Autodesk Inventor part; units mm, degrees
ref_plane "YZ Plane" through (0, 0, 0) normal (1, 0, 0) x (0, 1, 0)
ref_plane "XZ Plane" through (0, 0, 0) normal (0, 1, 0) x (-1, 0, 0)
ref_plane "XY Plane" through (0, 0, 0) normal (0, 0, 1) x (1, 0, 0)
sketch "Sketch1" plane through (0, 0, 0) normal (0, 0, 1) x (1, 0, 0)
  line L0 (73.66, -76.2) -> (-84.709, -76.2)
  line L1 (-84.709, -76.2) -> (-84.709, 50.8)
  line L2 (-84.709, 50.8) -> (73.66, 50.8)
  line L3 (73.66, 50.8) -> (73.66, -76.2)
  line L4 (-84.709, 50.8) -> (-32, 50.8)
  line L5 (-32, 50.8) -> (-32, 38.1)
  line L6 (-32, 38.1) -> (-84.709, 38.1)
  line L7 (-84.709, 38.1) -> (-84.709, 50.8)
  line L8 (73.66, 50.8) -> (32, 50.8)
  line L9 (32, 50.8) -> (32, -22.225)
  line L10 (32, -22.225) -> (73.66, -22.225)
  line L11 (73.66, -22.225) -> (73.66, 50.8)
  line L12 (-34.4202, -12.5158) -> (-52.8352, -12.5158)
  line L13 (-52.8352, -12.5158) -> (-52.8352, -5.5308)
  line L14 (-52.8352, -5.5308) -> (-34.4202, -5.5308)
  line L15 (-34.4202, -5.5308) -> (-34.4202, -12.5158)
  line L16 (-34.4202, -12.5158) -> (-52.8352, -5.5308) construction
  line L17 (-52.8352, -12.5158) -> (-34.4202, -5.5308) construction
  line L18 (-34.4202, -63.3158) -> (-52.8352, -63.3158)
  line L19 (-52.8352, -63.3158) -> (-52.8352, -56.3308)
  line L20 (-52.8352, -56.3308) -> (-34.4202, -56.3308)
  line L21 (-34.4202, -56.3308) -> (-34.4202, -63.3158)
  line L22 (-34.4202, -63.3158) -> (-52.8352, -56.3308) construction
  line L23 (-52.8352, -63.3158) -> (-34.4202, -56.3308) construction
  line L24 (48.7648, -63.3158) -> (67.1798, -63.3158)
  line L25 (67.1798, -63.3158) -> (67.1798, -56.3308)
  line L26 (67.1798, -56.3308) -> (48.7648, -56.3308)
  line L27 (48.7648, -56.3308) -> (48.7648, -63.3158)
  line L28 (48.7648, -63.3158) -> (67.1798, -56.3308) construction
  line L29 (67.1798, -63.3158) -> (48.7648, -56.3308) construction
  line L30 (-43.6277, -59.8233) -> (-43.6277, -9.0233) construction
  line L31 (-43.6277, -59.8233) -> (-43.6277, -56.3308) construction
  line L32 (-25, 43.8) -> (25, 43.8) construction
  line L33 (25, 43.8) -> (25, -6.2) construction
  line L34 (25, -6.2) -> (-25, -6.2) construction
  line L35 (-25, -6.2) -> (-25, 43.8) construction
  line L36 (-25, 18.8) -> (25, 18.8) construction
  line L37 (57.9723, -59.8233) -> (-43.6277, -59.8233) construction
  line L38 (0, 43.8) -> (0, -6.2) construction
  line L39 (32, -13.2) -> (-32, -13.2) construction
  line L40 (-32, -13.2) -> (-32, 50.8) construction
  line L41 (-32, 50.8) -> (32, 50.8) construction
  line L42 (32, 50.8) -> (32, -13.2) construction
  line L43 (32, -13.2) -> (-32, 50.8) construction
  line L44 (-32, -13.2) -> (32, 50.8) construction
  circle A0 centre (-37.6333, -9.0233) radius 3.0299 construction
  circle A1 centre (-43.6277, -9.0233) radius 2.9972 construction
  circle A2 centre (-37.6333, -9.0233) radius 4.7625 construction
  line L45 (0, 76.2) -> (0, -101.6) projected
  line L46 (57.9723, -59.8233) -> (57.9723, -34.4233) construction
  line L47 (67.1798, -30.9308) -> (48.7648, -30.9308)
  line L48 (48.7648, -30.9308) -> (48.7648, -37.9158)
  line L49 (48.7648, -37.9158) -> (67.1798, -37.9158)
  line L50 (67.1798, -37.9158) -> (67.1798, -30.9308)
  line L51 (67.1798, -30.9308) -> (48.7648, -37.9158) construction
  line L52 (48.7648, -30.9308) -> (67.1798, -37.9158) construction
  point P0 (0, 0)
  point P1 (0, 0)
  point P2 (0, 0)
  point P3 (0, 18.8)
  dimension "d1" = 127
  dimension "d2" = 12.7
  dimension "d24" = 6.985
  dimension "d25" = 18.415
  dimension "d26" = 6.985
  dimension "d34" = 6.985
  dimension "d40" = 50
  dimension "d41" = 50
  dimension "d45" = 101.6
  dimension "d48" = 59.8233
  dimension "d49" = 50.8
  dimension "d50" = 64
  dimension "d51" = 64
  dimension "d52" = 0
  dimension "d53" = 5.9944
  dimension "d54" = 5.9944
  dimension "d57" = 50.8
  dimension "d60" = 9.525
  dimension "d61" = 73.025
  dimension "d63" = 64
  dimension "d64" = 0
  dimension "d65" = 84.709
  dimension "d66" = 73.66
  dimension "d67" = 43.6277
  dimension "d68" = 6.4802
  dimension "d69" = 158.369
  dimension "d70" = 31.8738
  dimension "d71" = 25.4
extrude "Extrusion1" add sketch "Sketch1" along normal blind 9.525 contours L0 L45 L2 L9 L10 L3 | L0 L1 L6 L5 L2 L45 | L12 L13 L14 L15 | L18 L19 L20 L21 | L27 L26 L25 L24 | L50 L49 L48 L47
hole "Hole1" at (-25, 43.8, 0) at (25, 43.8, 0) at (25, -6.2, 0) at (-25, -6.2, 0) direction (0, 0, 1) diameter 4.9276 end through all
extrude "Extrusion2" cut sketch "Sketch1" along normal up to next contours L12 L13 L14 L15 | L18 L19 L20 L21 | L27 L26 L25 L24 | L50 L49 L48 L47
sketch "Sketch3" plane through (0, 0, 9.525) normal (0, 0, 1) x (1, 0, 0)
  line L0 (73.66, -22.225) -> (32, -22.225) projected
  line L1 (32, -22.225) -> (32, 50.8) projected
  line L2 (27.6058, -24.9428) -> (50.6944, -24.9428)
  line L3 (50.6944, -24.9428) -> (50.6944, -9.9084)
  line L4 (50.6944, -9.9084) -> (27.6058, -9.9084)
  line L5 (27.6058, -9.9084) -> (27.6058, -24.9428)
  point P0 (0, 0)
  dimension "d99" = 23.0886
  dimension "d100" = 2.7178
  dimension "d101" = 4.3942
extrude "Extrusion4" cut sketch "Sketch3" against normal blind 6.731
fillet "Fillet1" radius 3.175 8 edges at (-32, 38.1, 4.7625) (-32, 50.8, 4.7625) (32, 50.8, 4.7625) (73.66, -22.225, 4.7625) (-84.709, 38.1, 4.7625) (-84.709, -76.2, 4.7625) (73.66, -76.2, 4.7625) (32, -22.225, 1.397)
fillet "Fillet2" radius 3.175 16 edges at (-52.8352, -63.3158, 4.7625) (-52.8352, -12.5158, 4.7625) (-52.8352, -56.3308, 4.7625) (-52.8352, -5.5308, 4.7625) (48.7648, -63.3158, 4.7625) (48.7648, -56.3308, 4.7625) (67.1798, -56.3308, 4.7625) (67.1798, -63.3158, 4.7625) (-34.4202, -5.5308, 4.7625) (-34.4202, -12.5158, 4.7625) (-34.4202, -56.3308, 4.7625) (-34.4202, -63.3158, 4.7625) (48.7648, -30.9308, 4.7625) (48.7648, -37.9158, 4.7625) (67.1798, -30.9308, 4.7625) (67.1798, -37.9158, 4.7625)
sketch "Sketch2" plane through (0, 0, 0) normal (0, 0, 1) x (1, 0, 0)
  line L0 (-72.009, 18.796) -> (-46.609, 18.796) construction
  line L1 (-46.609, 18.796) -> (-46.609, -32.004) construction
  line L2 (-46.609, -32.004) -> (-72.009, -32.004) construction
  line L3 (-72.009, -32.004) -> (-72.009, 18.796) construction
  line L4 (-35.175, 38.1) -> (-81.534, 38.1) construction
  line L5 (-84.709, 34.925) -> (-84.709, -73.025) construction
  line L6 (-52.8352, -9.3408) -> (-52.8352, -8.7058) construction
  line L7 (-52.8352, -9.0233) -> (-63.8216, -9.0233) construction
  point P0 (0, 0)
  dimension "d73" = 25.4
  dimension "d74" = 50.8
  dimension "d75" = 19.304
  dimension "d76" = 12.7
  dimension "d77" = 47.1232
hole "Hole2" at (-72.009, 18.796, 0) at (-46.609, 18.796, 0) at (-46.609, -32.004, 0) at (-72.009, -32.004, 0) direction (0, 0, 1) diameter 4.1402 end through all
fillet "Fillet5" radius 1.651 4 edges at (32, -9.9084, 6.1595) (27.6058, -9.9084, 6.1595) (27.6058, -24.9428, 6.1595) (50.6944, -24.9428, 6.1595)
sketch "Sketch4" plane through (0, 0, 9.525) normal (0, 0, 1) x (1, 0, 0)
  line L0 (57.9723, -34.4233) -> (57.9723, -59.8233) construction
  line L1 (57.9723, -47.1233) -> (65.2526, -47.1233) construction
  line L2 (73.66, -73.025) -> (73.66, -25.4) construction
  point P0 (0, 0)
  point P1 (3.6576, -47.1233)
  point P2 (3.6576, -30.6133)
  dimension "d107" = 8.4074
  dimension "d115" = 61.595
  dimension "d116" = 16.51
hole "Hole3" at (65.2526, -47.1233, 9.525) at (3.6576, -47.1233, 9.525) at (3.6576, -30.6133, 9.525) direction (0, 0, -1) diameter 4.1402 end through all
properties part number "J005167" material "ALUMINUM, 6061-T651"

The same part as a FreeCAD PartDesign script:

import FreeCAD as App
import Part
import Sketcher
from FreeCAD import Vector
Q = App.Units.Quantity


def edges_at(feature, points):
    """Names of the edges that pass closest to the given points."""
    edges = feature.Shape.Edges
    near = lambda p: min(range(len(edges)), key=lambda i: edges[i].distToShape(Part.Vertex(*p))[0])
    return sorted({f"Edge{near(p) + 1}" for p in points})

doc = App.newDocument("Part")
body = doc.addObject("PartDesign::Body", "Body")

# Sketch on XY plane
sketch1 = body.newObject("Sketcher::SketchObject", "Sketch")
sketch1.AttachmentSupport = (doc.getObject("XY_Plane"), [""])
sketch1.MapMode = "FlatFace"
sketch1.addGeometry(Part.LineSegment(Vector(74, -76, 0), Vector(74, -22, 0)), False)
sketch1.addGeometry(Part.LineSegment(Vector(74, -22, 0), Vector(32, -22, 0)), False)
sketch1.addGeometry(Part.LineSegment(Vector(32, -22, 0), Vector(32, 51, 0)), False)
sketch1.addGeometry(Part.LineSegment(Vector(32, 51, 0), Vector(-32, 51, 0)), False)
sketch1.addGeometry(Part.LineSegment(Vector(-32, 51, 0), Vector(-32, 38, 0)), False)
sketch1.addGeometry(Part.LineSegment(Vector(-32, 38, 0), Vector(-85, 38, 0)), False)
sketch1.addGeometry(Part.LineSegment(Vector(-85, 38, 0), Vector(-85, -76, 0)), False)
sketch1.addGeometry(Part.LineSegment(Vector(-85, -76, 0), Vector(74, -76, 0)), False)
sketch1.addConstraint(Sketcher.Constraint("Coincident", 0, 2, 1, 1))
sketch1.addConstraint(Sketcher.Constraint("Coincident", 1, 2, 2, 1))
sketch1.addConstraint(Sketcher.Constraint("Coincident", 2, 2, 3, 1))
sketch1.addConstraint(Sketcher.Constraint("Coincident", 3, 2, 4, 1))
sketch1.addConstraint(Sketcher.Constraint("Coincident", 4, 2, 5, 1))
sketch1.addConstraint(Sketcher.Constraint("Coincident", 5, 2, 6, 1))
sketch1.addConstraint(Sketcher.Constraint("Coincident", 6, 2, 7, 1))
sketch1.addConstraint(Sketcher.Constraint("Coincident", 7, 2, 0, 1))
sketch1.addConstraint(Sketcher.Constraint("Vertical", 0))
sketch1.addConstraint(Sketcher.Constraint("Horizontal", 1))
sketch1.addConstraint(Sketcher.Constraint("Vertical", 2))
sketch1.addConstraint(Sketcher.Constraint("Horizontal", 3))
sketch1.addConstraint(Sketcher.Constraint("Vertical", 4))
sketch1.addConstraint(Sketcher.Constraint("Horizontal", 5))
sketch1.addConstraint(Sketcher.Constraint("Vertical", 6))
sketch1.addConstraint(Sketcher.Constraint("Horizontal", 7))
sketch1.addConstraint(Sketcher.Constraint("DistanceY", 4, 2, 4, 1, Q("0.5 in")))
sketch1.addConstraint(Sketcher.Constraint("DistanceY", -1, 1, 2, 2, Q("2 in")))
sketch1.addConstraint(Sketcher.Constraint("DistanceY", 6, 2, 3, 2, Q("5 in")))
sketch1.addConstraint(Sketcher.Constraint("DistanceX", -1, 1, 0, 2, Q("2.9 in")))
sketch1.addConstraint(Sketcher.Constraint("DistanceX", 7, 1, 7, 2, Q("6.235 in")))
sketch1.addConstraint(Sketcher.Constraint("DistanceY", 2, 1, 2, 2, Q("2.875 in")))
sketch1.addConstraint(Sketcher.Constraint("DistanceX", 3, 2, 3, 1, Q("64 mm")))
sketch1.addConstraint(Sketcher.Constraint("DistanceX", 1, 2, 1, 1, Q("41.66 mm")))
pad1 = body.newObject("PartDesign::Pad", "Pad")
pad1.Profile = sketch1
pad1.Length = Q("0.375 in")

# Sketch on XY plane
sketch2 = body.newObject("Sketcher::SketchObject", "Sketch001")
sketch2.AttachmentSupport = (doc.getObject("XY_Plane"), [""])
sketch2.MapMode = "FlatFace"
sketch2.addGeometry(Part.Circle(Vector(-25, 43.8, 0), Vector(0, 0, 1), 2.5), False)
sketch2.addGeometry(Part.Circle(Vector(25, 43.8, 0), Vector(0, 0, 1), 2.5), False)
sketch2.addGeometry(Part.Circle(Vector(25, -6.2, 0), Vector(0, 0, 1), 2.5), False)
sketch2.addGeometry(Part.Circle(Vector(-25, -6.2, 0), Vector(0, 0, 1), 2.5), False)
sketch2.addConstraint(Sketcher.Constraint("Equal", 0, 1))
sketch2.addConstraint(Sketcher.Constraint("Equal", 1, 2))
sketch2.addConstraint(Sketcher.Constraint("Equal", 2, 3))
sketch2.addConstraint(Sketcher.Constraint("Symmetric", 0, 3, 1, 3, -2))
sketch2.addConstraint(Sketcher.Constraint("Symmetric", 2, 3, 3, 3, -2))
sketch2.addConstraint(Sketcher.Constraint("Vertical", 1, 3, 2, 3))
sketch2.addConstraint(Sketcher.Constraint("Diameter", 0, Q("0.194 in")))
sketch2.addConstraint(Sketcher.Constraint("DistanceY", -1, 1, 0, 3, Q("1.7244 in")))
sketch2.addConstraint(Sketcher.Constraint("DistanceY", 2, 3, -1, 1, Q("0.2441 in")))
sketch2.addConstraint(Sketcher.Constraint("DistanceX", 0, 3, 1, 3, Q("1.9685 in")))
doc.recompute()
hole = body.newObject("PartDesign::Hole", "Hole")
hole.Profile = sketch2
hole.ThreadType = "None"
hole.Diameter = Q("0.194 in")
hole.DepthType = "ThroughAll"
hole.Reversed = True

# Sketch on XY plane
sketch3 = body.newObject("Sketcher::SketchObject", "Sketch002")
sketch3.AttachmentSupport = (doc.getObject("XY_Plane"), [""])
sketch3.MapMode = "FlatFace"
sketch3.addGeometry(Part.LineSegment(Vector(-53, -13, 0), Vector(-34, -13, 0)), False)
sketch3.addGeometry(Part.LineSegment(Vector(-34, -13, 0), Vector(-34, -6, 0)), False)
sketch3.addGeometry(Part.LineSegment(Vector(-34, -6, 0), Vector(-53, -6, 0)), False)
sketch3.addGeometry(Part.LineSegment(Vector(-53, -6, 0), Vector(-53, -13, 0)), False)
sketch3.addGeometry(Part.LineSegment(Vector(-53, -63, 0), Vector(-34, -63, 0)), False)
sketch3.addGeometry(Part.LineSegment(Vector(-34, -63, 0), Vector(-34, -56, 0)), False)
sketch3.addGeometry(Part.LineSegment(Vector(-34, -56, 0), Vector(-53, -56, 0)), False)
sketch3.addGeometry(Part.LineSegment(Vector(-53, -56, 0), Vector(-53, -63, 0)), False)
sketch3.addGeometry(Part.LineSegment(Vector(49, -56, 0), Vector(49, -63, 0)), False)
sketch3.addGeometry(Part.LineSegment(Vector(49, -63, 0), Vector(67, -63, 0)), False)
sketch3.addGeometry(Part.LineSegment(Vector(67, -63, 0), Vector(67, -56, 0)), False)
sketch3.addGeometry(Part.LineSegment(Vector(67, -56, 0), Vector(49, -56, 0)), False)
sketch3.addGeometry(Part.LineSegment(Vector(67, -38, 0), Vector(67, -31, 0)), False)
sketch3.addGeometry(Part.LineSegment(Vector(67, -31, 0), Vector(49, -31, 0)), False)
sketch3.addGeometry(Part.LineSegment(Vector(49, -31, 0), Vector(49, -38, 0)), False)
sketch3.addGeometry(Part.LineSegment(Vector(49, -38, 0), Vector(67, -38, 0)), False)
sketch3.addConstraint(Sketcher.Constraint("Coincident", 0, 2, 1, 1))
sketch3.addConstraint(Sketcher.Constraint("Coincident", 1, 2, 2, 1))
sketch3.addConstraint(Sketcher.Constraint("Coincident", 2, 2, 3, 1))
sketch3.addConstraint(Sketcher.Constraint("Coincident", 3, 2, 0, 1))
sketch3.addConstraint(Sketcher.Constraint("Coincident", 4, 2, 5, 1))
sketch3.addConstraint(Sketcher.Constraint("Coincident", 5, 2, 6, 1))
sketch3.addConstraint(Sketcher.Constraint("Coincident", 6, 2, 7, 1))
sketch3.addConstraint(Sketcher.Constraint("Coincident", 7, 2, 4, 1))
sketch3.addConstraint(Sketcher.Constraint("Coincident", 8, 2, 9, 1))
sketch3.addConstraint(Sketcher.Constraint("Coincident", 9, 2, 10, 1))
sketch3.addConstraint(Sketcher.Constraint("Coincident", 10, 2, 11, 1))
sketch3.addConstraint(Sketcher.Constraint("Coincident", 11, 2, 8, 1))
sketch3.addConstraint(Sketcher.Constraint("Coincident", 12, 2, 13, 1))
sketch3.addConstraint(Sketcher.Constraint("Coincident", 13, 2, 14, 1))
sketch3.addConstraint(Sketcher.Constraint("Coincident", 14, 2, 15, 1))
sketch3.addConstraint(Sketcher.Constraint("Coincident", 15, 2, 12, 1))
sketch3.addConstraint(Sketcher.Constraint("Horizontal", 0))
sketch3.addConstraint(Sketcher.Constraint("Vertical", 1))
sketch3.addConstraint(Sketcher.Constraint("Horizontal", 2))
sketch3.addConstraint(Sketcher.Constraint("Vertical", 3))
sketch3.addConstraint(Sketcher.Constraint("Horizontal", 4))
sketch3.addConstraint(Sketcher.Constraint("Vertical", 5))
sketch3.addConstraint(Sketcher.Constraint("Horizontal", 6))
sketch3.addConstraint(Sketcher.Constraint("Vertical", 7))
sketch3.addConstraint(Sketcher.Constraint("Vertical", 8))
sketch3.addConstraint(Sketcher.Constraint("Horizontal", 9))
sketch3.addConstraint(Sketcher.Constraint("Vertical", 10))
sketch3.addConstraint(Sketcher.Constraint("Horizontal", 11))
sketch3.addConstraint(Sketcher.Constraint("Vertical", 12))
sketch3.addConstraint(Sketcher.Constraint("Horizontal", 13))
sketch3.addConstraint(Sketcher.Constraint("Vertical", 14))
sketch3.addConstraint(Sketcher.Constraint("Horizontal", 15))
sketch3.addConstraint(Sketcher.Constraint("Horizontal", 7, 2, 8, 2))
sketch3.addConstraint(Sketcher.Constraint("Horizontal", 6, 2, 10, 2))
sketch3.addConstraint(Sketcher.Constraint("Vertical", 1, 2, 4, 2))
sketch3.addConstraint(Sketcher.Constraint("Vertical", 3, 2, 6, 2))
sketch3.addConstraint(Sketcher.Constraint("Vertical", 10, 2, 12, 2))
sketch3.addConstraint(Sketcher.Constraint("Vertical", 11, 2, 13, 2))
sketch3.addConstraint(Sketcher.Constraint("Equal", 6, 9))
sketch3.addConstraint(Sketcher.Constraint("Equal", 3, 5))
sketch3.addConstraint(Sketcher.Constraint("Equal", 10, 12))
sketch3.addConstraint(Sketcher.Constraint("DistanceY", 4, 2, 0, 2, Q("2 in")))
sketch3.addConstraint(Sketcher.Constraint("DistanceX", 7, 2, 8, 2, Q("4 in")))
sketch3.addConstraint(Sketcher.Constraint("DistanceY", 10, 2, 12, 2, Q("1 in")))
sketch3.addConstraint(Sketcher.Constraint("DistanceX", 0, 1, 0, 2, Q("0.725 in")))
sketch3.addConstraint(Sketcher.Constraint("DistanceY", 1, 1, 1, 2, Q("0.275 in")))
sketch3.addConstraint(Sketcher.Constraint("DistanceX", 0, 2, -1, 1, Q("34.4202 mm")))
sketch3.addConstraint(Sketcher.Constraint("DistanceY", 0, 2, -1, 1, Q("12.5158 mm")))
pocket1 = body.newObject("PartDesign::Pocket", "Pocket")
pocket1.Profile = sketch3
pocket1.Type = "UpToFirst"
pocket1.Reversed = True

# Sketch on XY plane
sketch4 = body.newObject("Sketcher::SketchObject", "Sketch003")
sketch4.AttachmentSupport = (doc.getObject("XY_Plane"), [""])
sketch4.MapMode = "FlatFace"
sketch4.AttachmentOffset = App.Placement(Vector(0, 0, 0.375 * 25.4), App.Rotation())
sketch4.addGeometry(Part.LineSegment(Vector(51, -25, 0), Vector(51, -10, 0)), False)
sketch4.addGeometry(Part.LineSegment(Vector(51, -10, 0), Vector(28, -10, 0)), False)
sketch4.addGeometry(Part.LineSegment(Vector(28, -10, 0), Vector(28, -25, 0)), False)
sketch4.addGeometry(Part.LineSegment(Vector(28, -25, 0), Vector(51, -25, 0)), False)
sketch4.addConstraint(Sketcher.Constraint("Coincident", 0, 2, 1, 1))
sketch4.addConstraint(Sketcher.Constraint("Coincident", 1, 2, 2, 1))
sketch4.addConstraint(Sketcher.Constraint("Coincident", 2, 2, 3, 1))
sketch4.addConstraint(Sketcher.Constraint("Coincident", 3, 2, 0, 1))
sketch4.addConstraint(Sketcher.Constraint("Vertical", 0))
sketch4.addConstraint(Sketcher.Constraint("Horizontal", 1))
sketch4.addConstraint(Sketcher.Constraint("Vertical", 2))
sketch4.addConstraint(Sketcher.Constraint("Horizontal", 3))
sketch4.addConstraint(Sketcher.Constraint("DistanceX", 1, 2, 1, 1, Q("0.909 in")))
sketch4.addConstraint(Sketcher.Constraint("DistanceY", 0, 1, 0, 2, Q("0.5919 in")))
sketch4.addConstraint(Sketcher.Constraint("DistanceY", 2, 2, -1, 1, Q("0.982 in")))
sketch4.addConstraint(Sketcher.Constraint("DistanceX", -1, 1, 0, 2, Q("50.6944 mm")))
pocket2 = body.newObject("PartDesign::Pocket", "Pocket001")
pocket2.Profile = sketch4
pocket2.Length = Q("0.265 in")
doc.recompute()

fillet = body.newObject("PartDesign::Fillet", "Fillet")
fillet.Base = (pocket2, edges_at(pocket2, [
    (-32, 38.1, 4.763),
    (-32, 50.8, 4.763),
    (32, 50.8, 4.763),
    (73.66, -22.225, 4.763),
    (-84.709, 38.1, 4.763),
    (-84.709, -76.2, 4.763),
    (73.66, -76.2, 4.763),
    (32, -22.225, 1.397),
]))
fillet.Radius = Q("0.125 in")
doc.recompute()

fillet2 = body.newObject("PartDesign::Fillet", "Fillet001")
fillet2.Base = (fillet, edges_at(fillet, [
    (-52.835, -63.316, 4.763),
    (-52.835, -12.516, 4.763),
    (-52.835, -56.331, 4.763),
    (-52.835, -5.531, 4.763),
    (48.765, -63.316, 4.763),
    (48.765, -56.331, 4.763),
    (67.18, -56.331, 4.763),
    (67.18, -63.316, 4.763),
    (-34.42, -5.531, 4.763),
    (-34.42, -12.516, 4.763),
    (-34.42, -56.331, 4.763),
    (-34.42, -63.316, 4.763),
    (48.765, -30.931, 4.763),
    (48.765, -37.916, 4.763),
    (67.18, -30.931, 4.763),
    (67.18, -37.916, 4.763),
]))
fillet2.Radius = Q("0.125 in")

# Sketch on XY plane
sketch5 = body.newObject("Sketcher::SketchObject", "Sketch004")
sketch5.AttachmentSupport = (doc.getObject("XY_Plane"), [""])
sketch5.MapMode = "FlatFace"
sketch5.addGeometry(Part.Circle(Vector(-72, 18.8, 0), Vector(0, 0, 1), 2.1), False)
sketch5.addGeometry(Part.Circle(Vector(-46.6, 18.8, 0), Vector(0, 0, 1), 2.1), False)
sketch5.addGeometry(Part.Circle(Vector(-46.6, -32, 0), Vector(0, 0, 1), 2.1), False)
sketch5.addGeometry(Part.Circle(Vector(-72, -32, 0), Vector(0, 0, 1), 2.1), False)
sketch5.addConstraint(Sketcher.Constraint("Equal", 0, 1))
sketch5.addConstraint(Sketcher.Constraint("Equal", 1, 2))
sketch5.addConstraint(Sketcher.Constraint("Equal", 2, 3))
sketch5.addConstraint(Sketcher.Constraint("Horizontal", 0, 3, 1, 3))
sketch5.addConstraint(Sketcher.Constraint("Horizontal", 2, 3, 3, 3))
sketch5.addConstraint(Sketcher.Constraint("Vertical", 1, 3, 2, 3))
sketch5.addConstraint(Sketcher.Constraint("Vertical", 0, 3, 3, 3))
sketch5.addConstraint(Sketcher.Constraint("Diameter", 0, Q("0.163 in")))
sketch5.addConstraint(Sketcher.Constraint("DistanceX", 0, 3, 1, 3, Q("1 in")))
sketch5.addConstraint(Sketcher.Constraint("DistanceY", 2, 3, 1, 3, Q("2 in")))
sketch5.addConstraint(Sketcher.Constraint("DistanceY", -1, 1, 0, 3, Q("0.74 in")))
sketch5.addConstraint(Sketcher.Constraint("DistanceX", 0, 3, -1, 1, Q("2.835 in")))
doc.recompute()
hole2 = body.newObject("PartDesign::Hole", "Hole001")
hole2.Profile = sketch5
hole2.ThreadType = "None"
hole2.Diameter = Q("0.163 in")
hole2.DepthType = "ThroughAll"
hole2.Reversed = True
doc.recompute()

fillet3 = body.newObject("PartDesign::Fillet", "Fillet002")
fillet3.Base = (hole2, edges_at(hole2, [
    (32, -9.908, 6.16),
    (27.606, -9.908, 6.16),
    (27.606, -24.943, 6.16),
    (50.694, -24.943, 6.16),
]))
fillet3.Radius = Q("0.065 in")

# Sketch on XY plane
sketch6 = body.newObject("Sketcher::SketchObject", "Sketch005")
sketch6.AttachmentSupport = (doc.getObject("XY_Plane"), [""])
sketch6.MapMode = "FlatFace"
sketch6.AttachmentOffset = App.Placement(Vector(0, 0, 0.375 * 25.4), App.Rotation())
sketch6.addGeometry(Part.Circle(Vector(65.3, -47.1, 0), Vector(0, 0, 1), 2.1), False)
sketch6.addGeometry(Part.Circle(Vector(3.7, -47.1, 0), Vector(0, 0, 1), 2.1), False)
sketch6.addGeometry(Part.Circle(Vector(3.7, -30.6, 0), Vector(0, 0, 1), 2.1), False)
sketch6.addConstraint(Sketcher.Constraint("Equal", 0, 1))
sketch6.addConstraint(Sketcher.Constraint("Equal", 1, 2))
sketch6.addConstraint(Sketcher.Constraint("Horizontal", 0, 3, 1, 3))
sketch6.addConstraint(Sketcher.Constraint("Vertical", 1, 3, 2, 3))
sketch6.addConstraint(Sketcher.Constraint("Diameter", 0, Q("0.163 in")))
sketch6.addConstraint(Sketcher.Constraint("DistanceY", 1, 3, 2, 3, Q("0.65 in")))
sketch6.addConstraint(Sketcher.Constraint("DistanceX", -1, 1, 0, 3, Q("2.569 in")))
sketch6.addConstraint(Sketcher.Constraint("DistanceX", -1, 1, 1, 3, Q("0.144 in")))
sketch6.addConstraint(Sketcher.Constraint("DistanceY", 0, 3, -1, 1, Q("47.1233 mm")))
doc.recompute()
hole3 = body.newObject("PartDesign::Hole", "Hole002")
hole3.Profile = sketch6
hole3.ThreadType = "None"
hole3.Diameter = Q("0.163 in")
hole3.DepthType = "ThroughAll"

doc.recompute()
